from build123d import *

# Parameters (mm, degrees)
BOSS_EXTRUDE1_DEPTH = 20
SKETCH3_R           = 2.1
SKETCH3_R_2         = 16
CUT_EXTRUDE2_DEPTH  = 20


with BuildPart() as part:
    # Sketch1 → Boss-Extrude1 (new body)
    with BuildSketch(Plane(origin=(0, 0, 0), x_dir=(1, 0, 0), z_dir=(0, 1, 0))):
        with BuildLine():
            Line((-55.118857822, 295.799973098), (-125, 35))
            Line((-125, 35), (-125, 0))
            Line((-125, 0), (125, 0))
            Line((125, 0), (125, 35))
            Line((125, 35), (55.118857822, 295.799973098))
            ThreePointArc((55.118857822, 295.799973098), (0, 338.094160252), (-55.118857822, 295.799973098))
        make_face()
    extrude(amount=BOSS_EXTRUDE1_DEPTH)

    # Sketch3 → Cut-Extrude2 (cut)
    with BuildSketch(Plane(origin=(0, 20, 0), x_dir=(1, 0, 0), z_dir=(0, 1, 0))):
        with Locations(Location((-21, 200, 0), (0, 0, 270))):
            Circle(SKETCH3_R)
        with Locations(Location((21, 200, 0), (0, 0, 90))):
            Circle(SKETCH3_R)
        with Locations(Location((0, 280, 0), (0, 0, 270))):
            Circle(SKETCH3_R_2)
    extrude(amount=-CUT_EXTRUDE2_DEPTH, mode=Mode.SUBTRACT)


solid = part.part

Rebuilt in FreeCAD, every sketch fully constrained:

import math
import FreeCAD as App
import Part
import Sketcher
from FreeCAD import Vector
Q = App.Units.Quantity

doc = App.newDocument("Part")
params = doc.addObject("Spreadsheet::Sheet", "Params")
for row, (alias, value) in enumerate([
    ("sketch1_width", "250 mm"),
    ("sketch1_height", "35 mm"),
    ("sketch1_length", "270 mm"),
    ("pad1_length", "20 mm"),
    ("sketch2_diameter", "32 mm"),
    ("sketch2_diameter2", "4.2 mm"),
    ("pocket1_length", "20 mm"),
], start=1):
    params.set(f"A{row}", alias)
    params.set(f"B{row}", "=" + value)
    params.setAlias(f"B{row}", alias)

body = doc.addObject("PartDesign::Body", "Body")

# Sketch on XZ plane
sketch1 = doc.addObject("Sketcher::SketchObject", "Sketch")
body.addObject(sketch1)
sketch1.AttachmentSupport = (doc.XZ_Plane, [""])
sketch1.MapMode = "FlatFace"
sketch1.addGeometry(Part.LineSegment(Vector(-55.118858, -295.799973, 0), Vector(-125, -35, 0)), False)
sketch1.addGeometry(Part.LineSegment(Vector(-125, -35, 0), Vector(-125, 0, 0)), False)
sketch1.addGeometry(Part.LineSegment(Vector(-125, 0, 0), Vector(125, 0, 0)), False)
sketch1.addGeometry(Part.LineSegment(Vector(125, 0, 0), Vector(125, -35, 0)), False)
sketch1.addGeometry(Part.LineSegment(Vector(125, -35, 0), Vector(55.118858, -295.799973, 0)), False)
sketch1.addGeometry(Part.ArcOfCircle(Part.Circle(Vector(0, -281.03092, 0), Vector(0, 0, 1), 57.063241), math.radians(-165), math.radians(-15)), False)
sketch1.addConstraint(Sketcher.Constraint("Coincident", 0, 2, 1, 1))
sketch1.addConstraint(Sketcher.Constraint("Coincident", 1, 2, 2, 1))
sketch1.addConstraint(Sketcher.Constraint("Coincident", 2, 2, 3, 1))
sketch1.addConstraint(Sketcher.Constraint("Coincident", 3, 2, 4, 1))
sketch1.addConstraint(Sketcher.Constraint("Tangent", 4, 2, 5, 2))
sketch1.addConstraint(Sketcher.Constraint("Tangent", 5, 1, 0, 1))
sketch1.addConstraint(Sketcher.Constraint("Vertical", 1))
sketch1.addConstraint(Sketcher.Constraint("Horizontal", 2))
sketch1.addConstraint(Sketcher.Constraint("Vertical", 3))
sketch1.addConstraint(Sketcher.Constraint("Symmetric", 1, 2, 2, 2, -1, 1))
sketch1.addConstraint(Sketcher.Constraint("PointOnObject", 5, 3, -2))
sketch1.addConstraint(Sketcher.Constraint("Horizontal", 0, 2, 3, 2))
sketch1.addConstraint(Sketcher.Constraint("DistanceX", 2, 1, 2, 2, 250.0))
sketch1.addConstraint(Sketcher.Constraint("DistanceY", 1, 1, 1, 2, 35.0))
sketch1.addConstraint(Sketcher.Constraint("Angle", 0, Q("105 deg")))
sketch1.addConstraint(Sketcher.Constraint("Distance", 0, 270.0))
sketch1.setExpression("Constraints[12]", "Params.sketch1_width")
sketch1.setExpression("Constraints[13]", "Params.sketch1_height")
sketch1.setExpression("Constraints[15]", "Params.sketch1_length")
pad1 = doc.addObject("PartDesign::Pad", "Pad")
body.addObject(pad1)
pad1.Profile = sketch1
pad1.setExpression("Length", "Params.pad1_length")
pad1.Reversed = True

# Sketch on XZ plane
sketch2 = doc.addObject("Sketcher::SketchObject", "Sketch001")
body.addObject(sketch2)
sketch2.AttachmentSupport = (doc.XZ_Plane, [""])
sketch2.MapMode = "FlatFace"
sketch2.AttachmentOffset = App.Placement(Vector(0, 0, -20), App.Rotation())
sketch2.addGeometry(Part.Circle(Vector(-21, -200, 0), Vector(0, 0, 1), 2.1), False)
sketch2.addGeometry(Part.Circle(Vector(21, -200, 0), Vector(0, 0, 1), 2.1), False)
sketch2.addGeometry(Part.Circle(Vector(0, -280, 0), Vector(0, 0, 1), 16), False)
sketch2.addConstraint(Sketcher.Constraint("Equal", 0, 1))
sketch2.addConstraint(Sketcher.Constraint("Symmetric", 0, 3, 1, 3, -2))
sketch2.addConstraint(Sketcher.Constraint("PointOnObject", 2, 3, -2))
sketch2.addConstraint(Sketcher.Constraint("Diameter", 2, 32.0))
sketch2.addConstraint(Sketcher.Constraint("Diameter", 0, 4.2))
sketch2.addConstraint(Sketcher.Constraint("DistanceX", 0, 3, -1, 1, 21.0))
sketch2.addConstraint(Sketcher.Constraint("DistanceY", 0, 3, -1, 1, 200.0))
sketch2.addConstraint(Sketcher.Constraint("DistanceY", 2, 3, -1, 1, 280.0))
sketch2.setExpression("Constraints[3]", "Params.sketch2_diameter")
sketch2.setExpression("Constraints[4]", "Params.sketch2_diameter2")
pocket1 = doc.addObject("PartDesign::Pocket", "Pocket")
body.addObject(pocket1)
pocket1.Profile = sketch2
pocket1.setExpression("Length", "Params.pocket1_length")
pocket1.Reversed = True

doc.recompute()
